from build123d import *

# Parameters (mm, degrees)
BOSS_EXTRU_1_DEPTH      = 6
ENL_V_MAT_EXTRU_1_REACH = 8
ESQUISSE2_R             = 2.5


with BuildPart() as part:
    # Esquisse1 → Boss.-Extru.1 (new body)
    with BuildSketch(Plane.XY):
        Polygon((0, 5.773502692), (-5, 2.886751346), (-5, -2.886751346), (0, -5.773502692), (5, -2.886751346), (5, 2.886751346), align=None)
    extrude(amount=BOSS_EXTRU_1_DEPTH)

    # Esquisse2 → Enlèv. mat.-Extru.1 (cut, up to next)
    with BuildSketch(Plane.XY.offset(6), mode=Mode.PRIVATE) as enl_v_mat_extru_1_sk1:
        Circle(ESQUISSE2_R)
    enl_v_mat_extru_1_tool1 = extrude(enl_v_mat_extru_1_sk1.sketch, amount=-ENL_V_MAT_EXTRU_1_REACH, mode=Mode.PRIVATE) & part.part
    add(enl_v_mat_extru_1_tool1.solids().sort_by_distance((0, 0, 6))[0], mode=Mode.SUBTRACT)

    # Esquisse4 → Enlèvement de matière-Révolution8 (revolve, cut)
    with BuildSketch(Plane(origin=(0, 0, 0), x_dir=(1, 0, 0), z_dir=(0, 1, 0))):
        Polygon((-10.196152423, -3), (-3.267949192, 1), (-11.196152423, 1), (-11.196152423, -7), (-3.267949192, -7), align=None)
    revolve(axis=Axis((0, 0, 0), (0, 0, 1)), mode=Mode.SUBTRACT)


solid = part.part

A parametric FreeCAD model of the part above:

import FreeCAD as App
import Part
import Sketcher
from FreeCAD import Vector
Q = App.Units.Quantity


def add_polygon(sketch, points):
    """Adds a closed chain of lines whose ends are joined by coincident constraints."""
    first, n = sketch.GeometryCount, len(points)
    for a, b in zip(points, points[1:] + points[:1]):
        sketch.addGeometry(Part.LineSegment(App.Vector(*a, 0), App.Vector(*b, 0)), False)
    for i in range(n):
        sketch.addConstraint(Sketcher.Constraint("Coincident", first + i, 2, first + (i + 1) % n, 1))

doc = App.newDocument("Part")
body = doc.addObject("PartDesign::Body", "Body")

sketch1 = doc.addObject("Sketcher::SketchObject", "Sketch")
body.addObject(sketch1)
sketch1.AttachmentSupport = (doc.XY_Plane, [""])
sketch1.MapMode = "FlatFace"
add_polygon(sketch1, [(0, 6), (-5, 3), (-5, -3), (0, -6), (5, -3), (5, 3)])
sketch1.addConstraint(Sketcher.Constraint("Vertical", 1))
sketch1.addConstraint(Sketcher.Constraint("Vertical", 4))
sketch1.addConstraint(Sketcher.Constraint("Symmetric", 0, 2, 3, 2, -1, 1))
sketch1.addConstraint(Sketcher.Constraint("Symmetric", 2, 2, 5, 2, -1, 1))
sketch1.addConstraint(Sketcher.Constraint("PointOnObject", 2, 2, -2))
sketch1.addConstraint(Sketcher.Constraint("Parallel", 2, 5))
sketch1.addConstraint(Sketcher.Constraint("Horizontal", 1, 2, 3, 2))
sketch1.addConstraint(Sketcher.Constraint("Angle", 0, Q("-150 deg")))
sketch1.addConstraint(Sketcher.Constraint("DistanceX", 0, 2, -1, 1, Q("5 mm")))
sketch1.addConstraint(Sketcher.Constraint("DistanceY", 1, 2, 1, 1, Q("5.773503 mm")))
pad1 = doc.addObject("PartDesign::Pad", "Pad")
body.addObject(pad1)
pad1.Profile = sketch1
pad1.Length = 6

sketch2 = doc.addObject("Sketcher::SketchObject", "Sketch001")
body.addObject(sketch2)
sketch2.AttachmentSupport = (doc.XY_Plane, [""])
sketch2.MapMode = "FlatFace"
sketch2.AttachmentOffset = App.Placement(Vector(0, 0, 6), App.Rotation())
sketch2.addGeometry(Part.Circle(Vector(0, 0, 0), Vector(0, 0, 1), 2.5), False)
sketch2.addConstraint(Sketcher.Constraint("Coincident", 0, 3, -1, 1))
sketch2.addConstraint(Sketcher.Constraint("Diameter", 0, Q("5 mm")))
pocket1 = doc.addObject("PartDesign::Pocket", "Pocket")
body.addObject(pocket1)
pocket1.Profile = sketch2
pocket1.Type = "UpToFirst"

sketch3 = doc.addObject("Sketcher::SketchObject", "Sketch002")
body.addObject(sketch3)
sketch3.AttachmentSupport = (doc.XZ_Plane, [""])
sketch3.MapMode = "FlatFace"
add_polygon(sketch3, [(-10, 3), (-3, -1), (-11, -1), (-11, 7), (-3, 7)])
sketch3.addConstraint(Sketcher.Constraint("Horizontal", 1))
sketch3.addConstraint(Sketcher.Constraint("Vertical", 2))
sketch3.addConstraint(Sketcher.Constraint("Horizontal", 3))
sketch3.addConstraint(Sketcher.Constraint("Vertical", 0, 2, 3, 2))
sketch3.addConstraint(Sketcher.Constraint("Equal", 0, 4))
sketch3.addConstraint(Sketcher.Constraint("DistanceY", 2, 1, 2, 2, Q("8 mm")))
sketch3.addConstraint(Sketcher.Constraint("Angle", 0, Q("-30 deg")))
sketch3.addConstraint(Sketcher.Constraint("DistanceY", 0, 2, -1, 1, Q("1 mm")))
sketch3.addConstraint(Sketcher.Constraint("DistanceX", 1, 2, 4, 2, Q("1 mm")))
sketch3.addConstraint(Sketcher.Constraint("DistanceX", 0, 2, -1, 1, Q("3.267949 mm")))
groove = doc.addObject("PartDesign::Groove", "Groove")
body.addObject(groove)
groove.Profile = sketch3
groove.ReferenceAxis = (sketch3, ["V_Axis"])
groove.Angle = 360

doc.recompute()
